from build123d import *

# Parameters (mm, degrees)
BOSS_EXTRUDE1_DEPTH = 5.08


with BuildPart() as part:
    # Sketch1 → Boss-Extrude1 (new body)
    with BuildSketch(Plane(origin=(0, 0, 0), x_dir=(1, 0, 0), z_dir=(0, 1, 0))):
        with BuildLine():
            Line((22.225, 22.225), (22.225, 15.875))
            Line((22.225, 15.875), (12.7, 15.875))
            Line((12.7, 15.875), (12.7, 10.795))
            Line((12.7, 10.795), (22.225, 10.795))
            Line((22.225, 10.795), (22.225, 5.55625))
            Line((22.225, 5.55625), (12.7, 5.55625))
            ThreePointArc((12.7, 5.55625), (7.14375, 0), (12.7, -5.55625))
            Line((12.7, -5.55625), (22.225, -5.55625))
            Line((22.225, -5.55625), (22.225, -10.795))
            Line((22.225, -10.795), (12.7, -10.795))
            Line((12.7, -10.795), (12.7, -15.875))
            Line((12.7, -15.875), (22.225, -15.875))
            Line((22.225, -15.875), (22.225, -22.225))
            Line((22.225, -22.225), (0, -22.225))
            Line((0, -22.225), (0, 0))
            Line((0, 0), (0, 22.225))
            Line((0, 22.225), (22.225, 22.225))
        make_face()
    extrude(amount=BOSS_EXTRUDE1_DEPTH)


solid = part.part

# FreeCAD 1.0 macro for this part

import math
import FreeCAD as App
import Part
import Sketcher
Q = App.Units.Quantity

doc = App.newDocument("Part")
body = doc.addObject("PartDesign::Body", "Body")

sketch1 = body.newObject("Sketcher::SketchObject", "Sketch")
sketch1.AttachmentSupport = (doc.getObject("XZ_Plane"), [""])
sketch1.MapMode = "FlatFace"
sketch1.addGeometry([
    Part.LineSegment(App.Vector(22, -16, 0), App.Vector(22, -22, 0)),
    Part.LineSegment(App.Vector(22, -22, 0), App.Vector(0, -22, 0)),
    Part.LineSegment(App.Vector(0, -22, 0), App.Vector(0, 22, 0)),
    Part.LineSegment(App.Vector(0, 22, 0), App.Vector(22, 22, 0)),
    Part.LineSegment(App.Vector(22, 22, 0), App.Vector(22, 16, 0)),
    Part.LineSegment(App.Vector(22, 16, 0), App.Vector(13, 16, 0)),
    Part.LineSegment(App.Vector(13, 16, 0), App.Vector(13, 11, 0)),
    Part.LineSegment(App.Vector(13, 11, 0), App.Vector(22, 11, 0)),
    Part.LineSegment(App.Vector(22, 11, 0), App.Vector(22, 6, 0)),
    Part.LineSegment(App.Vector(22, 6, 0), App.Vector(13, 6, 0)),
    Part.ArcOfCircle(Part.Circle(App.Vector(13, 0, 0), App.Vector(0, 0, 1), 6), math.radians(90), math.radians(270)),
    Part.LineSegment(App.Vector(13, -6, 0), App.Vector(22, -6, 0)),
    Part.LineSegment(App.Vector(22, -6, 0), App.Vector(22, -11, 0)),
    Part.LineSegment(App.Vector(22, -11, 0), App.Vector(13, -11, 0)),
    Part.LineSegment(App.Vector(13, -11, 0), App.Vector(13, -16, 0)),
    Part.LineSegment(App.Vector(13, -16, 0), App.Vector(22, -16, 0)),
], False)
sketch1.addConstraint([
    Sketcher.Constraint("Coincident", 0, 2, 1, 1),
    Sketcher.Constraint("Coincident", 1, 2, 2, 1),
    Sketcher.Constraint("Coincident", 2, 2, 3, 1),
    Sketcher.Constraint("Coincident", 3, 2, 4, 1),
    Sketcher.Constraint("Coincident", 4, 2, 5, 1),
    Sketcher.Constraint("Coincident", 5, 2, 6, 1),
    Sketcher.Constraint("Coincident", 6, 2, 7, 1),
    Sketcher.Constraint("Coincident", 7, 2, 8, 1),
    Sketcher.Constraint("Coincident", 8, 2, 9, 1),
    Sketcher.Constraint("Tangent", 9, 2, 10, 1),
    Sketcher.Constraint("Tangent", 10, 2, 11, 1),
    Sketcher.Constraint("Coincident", 11, 2, 12, 1),
    Sketcher.Constraint("Coincident", 12, 2, 13, 1),
    Sketcher.Constraint("Coincident", 13, 2, 14, 1),
    Sketcher.Constraint("Coincident", 14, 2, 15, 1),
    Sketcher.Constraint("Coincident", 15, 2, 0, 1),
    Sketcher.Constraint("Vertical", 0),
    Sketcher.Constraint("Horizontal", 1),
    Sketcher.Constraint("Vertical", 2),
    Sketcher.Constraint("Horizontal", 3),
    Sketcher.Constraint("Vertical", 4),
    Sketcher.Constraint("Horizontal", 5),
    Sketcher.Constraint("Vertical", 6),
    Sketcher.Constraint("Horizontal", 7),
    Sketcher.Constraint("Vertical", 8),
    Sketcher.Constraint("Horizontal", 9),
    Sketcher.Constraint("Horizontal", 11),
    Sketcher.Constraint("Vertical", 12),
    Sketcher.Constraint("Horizontal", 13),
    Sketcher.Constraint("Vertical", 14),
    Sketcher.Constraint("Horizontal", 15),
    Sketcher.Constraint("Symmetric", 1, 2, 2, 2, -1, 1),
    Sketcher.Constraint("Symmetric", 8, 2, 11, 2, -1),
    Sketcher.Constraint("Symmetric", 6, 2, 13, 2, -1),
    Sketcher.Constraint("Symmetric", 4, 2, 15, 2, -1),
    Sketcher.Constraint("Vertical", 10, 3, 5, 2),
    Sketcher.Constraint("Vertical", 4, 2, 7, 2),
    Sketcher.Constraint("DistanceY", 6, 2, 6, 1, Q("0.2 in")),
    Sketcher.Constraint("Radius", 10, Q("0.21875 in")),
    Sketcher.Constraint("DistanceY", 0, 2, 0, 1, Q("0.25 in")),
    Sketcher.Constraint("DistanceY", 2, 1, 2, 2, Q("1.75 in")),
    Sketcher.Constraint("DistanceX", -1, 1, 10, 3, Q("0.5 in")),
    Sketcher.Constraint("DistanceX", 1, 2, 1, 1, Q("0.875 in")),
])
pad1 = body.newObject("PartDesign::Pad", "Pad")
pad1.Profile = sketch1
pad1.Length = Q("0.2 in")
pad1.Reversed = True

doc.recompute()
